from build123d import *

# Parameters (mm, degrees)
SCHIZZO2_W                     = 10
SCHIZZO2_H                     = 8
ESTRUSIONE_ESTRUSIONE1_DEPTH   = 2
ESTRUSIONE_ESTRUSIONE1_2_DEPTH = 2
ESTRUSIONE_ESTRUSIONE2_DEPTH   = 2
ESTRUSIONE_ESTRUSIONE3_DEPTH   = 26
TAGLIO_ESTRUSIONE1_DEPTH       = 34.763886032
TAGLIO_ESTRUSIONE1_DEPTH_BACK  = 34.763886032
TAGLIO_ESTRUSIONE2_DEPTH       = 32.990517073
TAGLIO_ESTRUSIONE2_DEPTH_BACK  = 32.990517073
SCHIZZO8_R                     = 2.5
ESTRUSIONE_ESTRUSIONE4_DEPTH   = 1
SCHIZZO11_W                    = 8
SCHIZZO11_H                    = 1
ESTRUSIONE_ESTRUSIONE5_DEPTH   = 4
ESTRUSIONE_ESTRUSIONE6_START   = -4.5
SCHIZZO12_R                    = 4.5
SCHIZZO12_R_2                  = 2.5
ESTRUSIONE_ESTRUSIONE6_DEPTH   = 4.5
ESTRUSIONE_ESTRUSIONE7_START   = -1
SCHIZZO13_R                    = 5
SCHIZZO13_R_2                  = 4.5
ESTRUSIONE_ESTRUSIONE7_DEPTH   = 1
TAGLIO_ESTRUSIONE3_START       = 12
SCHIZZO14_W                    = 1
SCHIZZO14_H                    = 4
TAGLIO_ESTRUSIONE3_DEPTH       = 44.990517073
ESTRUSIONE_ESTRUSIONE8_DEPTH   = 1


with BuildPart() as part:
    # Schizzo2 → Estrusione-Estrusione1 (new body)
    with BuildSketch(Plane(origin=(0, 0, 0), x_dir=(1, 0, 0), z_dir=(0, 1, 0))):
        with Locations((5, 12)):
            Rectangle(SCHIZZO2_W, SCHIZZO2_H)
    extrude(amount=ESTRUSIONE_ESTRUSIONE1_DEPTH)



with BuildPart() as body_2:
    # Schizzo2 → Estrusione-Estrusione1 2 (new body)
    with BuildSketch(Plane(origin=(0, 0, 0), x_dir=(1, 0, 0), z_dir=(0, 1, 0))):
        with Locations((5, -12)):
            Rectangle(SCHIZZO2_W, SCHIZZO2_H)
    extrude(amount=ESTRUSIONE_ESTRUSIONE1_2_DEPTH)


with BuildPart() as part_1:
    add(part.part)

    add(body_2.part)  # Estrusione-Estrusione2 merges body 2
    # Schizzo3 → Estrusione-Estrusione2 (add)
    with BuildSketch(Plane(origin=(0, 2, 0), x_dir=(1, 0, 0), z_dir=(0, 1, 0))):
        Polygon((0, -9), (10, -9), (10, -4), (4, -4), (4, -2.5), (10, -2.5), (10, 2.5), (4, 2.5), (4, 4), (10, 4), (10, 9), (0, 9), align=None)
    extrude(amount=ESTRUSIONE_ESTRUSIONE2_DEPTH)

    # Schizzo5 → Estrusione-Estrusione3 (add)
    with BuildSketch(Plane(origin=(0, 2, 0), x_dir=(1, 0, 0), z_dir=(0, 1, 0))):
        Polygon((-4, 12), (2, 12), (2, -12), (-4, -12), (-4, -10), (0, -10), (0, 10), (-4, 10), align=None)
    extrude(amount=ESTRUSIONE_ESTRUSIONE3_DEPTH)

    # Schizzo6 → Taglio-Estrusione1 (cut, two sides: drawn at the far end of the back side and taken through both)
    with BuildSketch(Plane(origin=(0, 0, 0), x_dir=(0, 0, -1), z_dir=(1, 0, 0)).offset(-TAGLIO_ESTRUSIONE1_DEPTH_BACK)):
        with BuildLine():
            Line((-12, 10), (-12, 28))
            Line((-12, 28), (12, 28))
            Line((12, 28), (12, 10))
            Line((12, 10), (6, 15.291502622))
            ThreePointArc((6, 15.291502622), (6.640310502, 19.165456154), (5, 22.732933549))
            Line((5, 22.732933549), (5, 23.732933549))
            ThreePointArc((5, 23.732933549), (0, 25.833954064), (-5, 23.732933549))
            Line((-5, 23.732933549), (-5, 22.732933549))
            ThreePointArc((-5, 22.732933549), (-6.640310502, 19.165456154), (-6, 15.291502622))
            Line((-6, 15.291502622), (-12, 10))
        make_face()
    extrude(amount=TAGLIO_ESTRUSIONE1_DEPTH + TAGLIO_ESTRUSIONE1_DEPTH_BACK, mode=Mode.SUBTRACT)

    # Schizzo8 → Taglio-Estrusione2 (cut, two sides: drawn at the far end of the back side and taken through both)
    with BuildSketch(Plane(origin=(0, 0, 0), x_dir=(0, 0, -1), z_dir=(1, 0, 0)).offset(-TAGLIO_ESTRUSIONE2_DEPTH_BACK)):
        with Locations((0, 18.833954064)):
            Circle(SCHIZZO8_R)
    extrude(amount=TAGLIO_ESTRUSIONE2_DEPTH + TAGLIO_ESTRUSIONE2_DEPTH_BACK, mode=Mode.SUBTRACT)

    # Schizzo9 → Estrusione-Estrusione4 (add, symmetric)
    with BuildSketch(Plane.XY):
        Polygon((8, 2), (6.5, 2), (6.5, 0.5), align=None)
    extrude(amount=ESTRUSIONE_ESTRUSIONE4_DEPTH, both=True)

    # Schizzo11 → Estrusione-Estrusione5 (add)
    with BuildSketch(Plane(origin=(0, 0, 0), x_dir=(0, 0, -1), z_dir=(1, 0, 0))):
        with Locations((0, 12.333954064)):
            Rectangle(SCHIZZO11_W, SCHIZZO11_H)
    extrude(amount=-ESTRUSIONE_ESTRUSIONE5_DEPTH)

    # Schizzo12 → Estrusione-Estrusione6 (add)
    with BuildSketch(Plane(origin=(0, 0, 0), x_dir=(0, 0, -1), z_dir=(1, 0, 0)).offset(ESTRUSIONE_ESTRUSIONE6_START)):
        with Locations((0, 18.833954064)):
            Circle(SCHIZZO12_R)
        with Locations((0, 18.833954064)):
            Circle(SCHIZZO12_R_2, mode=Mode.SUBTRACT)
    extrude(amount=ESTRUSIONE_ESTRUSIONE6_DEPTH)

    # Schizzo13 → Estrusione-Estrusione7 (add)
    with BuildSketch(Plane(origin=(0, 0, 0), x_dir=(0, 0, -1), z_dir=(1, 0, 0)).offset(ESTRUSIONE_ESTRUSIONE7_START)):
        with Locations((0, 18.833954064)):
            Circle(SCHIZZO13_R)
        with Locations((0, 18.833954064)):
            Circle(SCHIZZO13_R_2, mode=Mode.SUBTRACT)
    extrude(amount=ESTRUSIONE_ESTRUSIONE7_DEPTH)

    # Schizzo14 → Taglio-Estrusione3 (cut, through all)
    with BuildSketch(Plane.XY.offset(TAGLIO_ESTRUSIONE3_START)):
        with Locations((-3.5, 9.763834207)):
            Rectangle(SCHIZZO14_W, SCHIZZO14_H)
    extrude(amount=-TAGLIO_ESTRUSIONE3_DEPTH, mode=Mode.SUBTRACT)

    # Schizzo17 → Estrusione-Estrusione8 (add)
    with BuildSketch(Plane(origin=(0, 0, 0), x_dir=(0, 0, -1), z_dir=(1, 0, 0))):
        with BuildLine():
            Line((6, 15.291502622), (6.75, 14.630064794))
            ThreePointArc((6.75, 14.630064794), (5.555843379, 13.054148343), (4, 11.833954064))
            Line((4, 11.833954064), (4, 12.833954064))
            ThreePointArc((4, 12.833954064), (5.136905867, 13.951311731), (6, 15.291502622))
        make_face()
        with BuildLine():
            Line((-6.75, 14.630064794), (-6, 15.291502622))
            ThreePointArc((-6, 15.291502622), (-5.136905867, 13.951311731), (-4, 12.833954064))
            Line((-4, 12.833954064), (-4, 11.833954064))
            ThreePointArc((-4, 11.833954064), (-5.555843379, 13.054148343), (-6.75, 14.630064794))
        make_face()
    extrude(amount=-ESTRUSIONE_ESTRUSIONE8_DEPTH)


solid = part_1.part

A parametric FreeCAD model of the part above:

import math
import FreeCAD as App
import Part
import Sketcher
Q = App.Units.Quantity


def add_polygon(sketch, points):
    """Adds a closed chain of lines whose ends are joined by coincident constraints."""
    first, n = sketch.GeometryCount, len(points)
    for a, b in zip(points, points[1:] + points[:1]):
        sketch.addGeometry(Part.LineSegment(App.Vector(*a, 0), App.Vector(*b, 0)), False)
    for i in range(n):
        sketch.addConstraint(Sketcher.Constraint("Coincident", first + i, 2, first + (i + 1) % n, 1))

doc = App.newDocument("Part")
body = doc.addObject("PartDesign::Body", "Body")

sketch1 = body.newObject("Sketcher::SketchObject", "Sketch")
sketch1.AttachmentSupport = (doc.getObject("XZ_Plane"), [""])
sketch1.MapMode = "FlatFace"
add_polygon(sketch1, [(0, -16), (0, -8), (10, -8), (10, -16)])
sketch1.addConstraint([
    Sketcher.Constraint("Vertical", 0),
    Sketcher.Constraint("Horizontal", 1),
    Sketcher.Constraint("Vertical", 2),
    Sketcher.Constraint("Horizontal", 3),
    Sketcher.Constraint("PointOnObject", 0, 2, -2),
    Sketcher.Constraint("DistanceX", 1, 1, 1, 2, Q("10 mm")),
    Sketcher.Constraint("DistanceY", 0, 1, 0, 2, Q("8 mm")),
    Sketcher.Constraint("DistanceY", 0, 2, -1, 1, Q("8 mm")),
])
pad1 = body.newObject("PartDesign::Pad", "Pad")
pad1.Profile = sketch1
pad1.Length = 2
pad1.Reversed = True
body2 = doc.addObject("PartDesign::Body", "Body001")

sketch2 = body2.newObject("Sketcher::SketchObject", "Sketch001")
sketch2.AttachmentSupport = (doc.getObject("XZ_Plane001"), [""])
sketch2.MapMode = "FlatFace"
add_polygon(sketch2, [(0, 8), (0, 16), (10, 16), (10, 8)])
sketch2.addConstraint([
    Sketcher.Constraint("Vertical", 0),
    Sketcher.Constraint("Horizontal", 1),
    Sketcher.Constraint("Vertical", 2),
    Sketcher.Constraint("Horizontal", 3),
    Sketcher.Constraint("PointOnObject", 0, 2, -2),
    Sketcher.Constraint("DistanceX", 1, 1, 1, 2, Q("10 mm")),
    Sketcher.Constraint("DistanceY", 0, 1, 0, 2, Q("8 mm")),
    Sketcher.Constraint("DistanceY", -1, 1, 0, 2, Q("16 mm")),
])
pad2 = body2.newObject("PartDesign::Pad", "Pad001")
pad2.Profile = sketch2
pad2.Length = 2
pad2.Reversed = True
body.AllowCompound = True
doc.recompute()

boolean = body.newObject("PartDesign::Boolean", "Boolean")
boolean.Type = "Fuse"
boolean.addObjects([body2])

sketch3 = body.newObject("Sketcher::SketchObject", "Sketch002")
sketch3.AttachmentSupport = (doc.getObject("XZ_Plane"), [""])
sketch3.MapMode = "FlatFace"
sketch3.AttachmentOffset = App.Placement(App.Vector(0, 0, -2), App.Rotation())
add_polygon(sketch3, [(0, 9), (10, 9), (10, 4), (4, 4), (4, 2.5), (10, 2.5), (10, -2.5), (4, -2.5), (4, -4), (10, -4), (10, -9), (0, -9)])
sketch3.addConstraint([
    Sketcher.Constraint("Horizontal", 0),
    Sketcher.Constraint("Vertical", 1),
    Sketcher.Constraint("Horizontal", 2),
    Sketcher.Constraint("Vertical", 3),
    Sketcher.Constraint("Horizontal", 4),
    Sketcher.Constraint("Vertical", 5),
    Sketcher.Constraint("Horizontal", 6),
    Sketcher.Constraint("Vertical", 7),
    Sketcher.Constraint("Horizontal", 8),
    Sketcher.Constraint("Vertical", 9),
    Sketcher.Constraint("Horizontal", 10),
    Sketcher.Constraint("Vertical", 11),
    Sketcher.Constraint("Symmetric", 10, 2, 11, 2, -1, 1),
    Sketcher.Constraint("Symmetric", 3, 2, 6, 2, -1),
    Sketcher.Constraint("Symmetric", 1, 2, 8, 2, -1),
    Sketcher.Constraint("Vertical", 1, 2, 4, 2),
    Sketcher.Constraint("Equal", 1, 5),
    Sketcher.Constraint("DistanceX", 0, 1, 0, 2, Q("10 mm")),
    Sketcher.Constraint("DistanceX", 2, 2, 2, 1, Q("6 mm")),
    Sketcher.Constraint("DistanceY", 1, 2, 1, 1, Q("5 mm")),
    Sketcher.Constraint("DistanceY", 11, 1, 11, 2, Q("18 mm")),
])
pad3 = body.newObject("PartDesign::Pad", "Pad002")
pad3.Profile = sketch3
pad3.Length = 2
pad3.Reversed = True

sketch4 = body.newObject("Sketcher::SketchObject", "Sketch003")
sketch4.AttachmentSupport = (doc.getObject("XZ_Plane"), [""])
sketch4.MapMode = "FlatFace"
sketch4.AttachmentOffset = App.Placement(App.Vector(0, 0, -2), App.Rotation())
add_polygon(sketch4, [(2, -12), (-4, -12), (-4, -10), (0, -10), (0, 10), (-4, 10), (-4, 12), (2, 12)])
sketch4.addConstraint([
    Sketcher.Constraint("Horizontal", 0),
    Sketcher.Constraint("Vertical", 1),
    Sketcher.Constraint("Horizontal", 2),
    Sketcher.Constraint("Vertical", 3),
    Sketcher.Constraint("Horizontal", 4),
    Sketcher.Constraint("Vertical", 5),
    Sketcher.Constraint("Horizontal", 6),
    Sketcher.Constraint("Vertical", 7),
    Sketcher.Constraint("Symmetric", 2, 2, 3, 2, -1, 1),
    Sketcher.Constraint("Symmetric", 0, 2, 5, 2, -1),
    Sketcher.Constraint("DistanceX", 0, 2, 0, 1, Q("6 mm")),
    Sketcher.Constraint("DistanceX", 2, 1, 2, 2, Q("4 mm")),
    Sketcher.Constraint("DistanceY", 1, 1, 1, 2, Q("2 mm")),
    Sketcher.Constraint("DistanceY", 3, 1, 3, 2, Q("20 mm")),
])
pad4 = body.newObject("PartDesign::Pad", "Pad003")
pad4.Profile = sketch4
pad4.Length = 26
pad4.Reversed = True

sketch5 = body.newObject("Sketcher::SketchObject", "Sketch004")
sketch5.AttachmentSupport = (doc.getObject("YZ_Plane"), [""])
sketch5.MapMode = "FlatFace"
sketch5.addGeometry([
    Part.LineSegment(App.Vector(28, 12, 0), App.Vector(10, 12, 0)),
    Part.LineSegment(App.Vector(10, 12, 0), App.Vector(15.3, 6, 0)),
    Part.ArcOfCircle(Part.Circle(App.Vector(18.3, 0, 0), App.Vector(0, 0, 1), 6.7), math.radians(48), math.radians(116)),
    Part.LineSegment(App.Vector(22.7, 5, 0), App.Vector(23.7, 5, 0)),
    Part.ArcOfCircle(Part.Circle(App.Vector(18.8, 0, 0), App.Vector(0, 0, 1), 7), math.radians(-46), math.radians(46)),
    Part.LineSegment(App.Vector(23.7, -5, 0), App.Vector(22.7, -5, 0)),
    Part.ArcOfCircle(Part.Circle(App.Vector(18.3, 0, 0), App.Vector(0, 0, 1), 6.7), math.radians(-116), math.radians(-48)),
    Part.LineSegment(App.Vector(15.3, -6, 0), App.Vector(10, -12, 0)),
    Part.LineSegment(App.Vector(10, -12, 0), App.Vector(28, -12, 0)),
    Part.LineSegment(App.Vector(28, -12, 0), App.Vector(28, 12, 0)),
], False)
sketch5.addConstraint([
    Sketcher.Constraint("Coincident", 0, 2, 1, 1),
    Sketcher.Constraint("Coincident", 1, 2, 2, 2),
    Sketcher.Constraint("Coincident", 2, 1, 3, 1),
    Sketcher.Constraint("Coincident", 3, 2, 4, 2),
    Sketcher.Constraint("Coincident", 4, 1, 5, 1),
    Sketcher.Constraint("Coincident", 5, 2, 6, 2),
    Sketcher.Constraint("Coincident", 6, 1, 7, 1),
    Sketcher.Constraint("Coincident", 7, 2, 8, 1),
    Sketcher.Constraint("Coincident", 8, 2, 9, 1),
    Sketcher.Constraint("Coincident", 9, 2, 0, 1),
    Sketcher.Constraint("Horizontal", 0),
    Sketcher.Constraint("Horizontal", 3),
    Sketcher.Constraint("Horizontal", 5),
    Sketcher.Constraint("Horizontal", 8),
    Sketcher.Constraint("Vertical", 9),
    Sketcher.Constraint("Coincident", 6, 3, 2, 3),
    Sketcher.Constraint("Equal", 2, 6),
    Sketcher.Constraint("Symmetric", 3, 2, 4, 1, -1),
    Sketcher.Constraint("Symmetric", 1, 2, 6, 1, -1),
    Sketcher.Constraint("Symmetric", 0, 2, 7, 2, -1),
    Sketcher.Constraint("Radius", 4, Q("7 mm")),
    Sketcher.Constraint("Radius", 2, Q("6.7 mm")),
    Sketcher.Constraint("DistanceX", 0, 2, 0, 1, Q("18 mm")),
    Sketcher.Constraint("DistanceX", 3, 1, 3, 2, Q("1 mm")),
    Sketcher.Constraint("DistanceY", 9, 1, 9, 2, Q("24 mm")),
    Sketcher.Constraint("Distance", 1, Q("8 mm")),
    Sketcher.Constraint("DistanceX", -1, 1, 0, 2, Q("10 mm")),
    Sketcher.Constraint("DistanceY", -1, 1, 1, 2, Q("6 mm")),
    Sketcher.Constraint("DistanceY", -1, 1, 2, 1, Q("5 mm")),
])
pocket1 = body.newObject("PartDesign::Pocket", "Pocket")
pocket1.Profile = sketch5
pocket1.Type = "ThroughAll"
pocket1.Midplane = True

sketch6 = body.newObject("Sketcher::SketchObject", "Sketch005")
sketch6.AttachmentSupport = (doc.getObject("YZ_Plane"), [""])
sketch6.MapMode = "FlatFace"
sketch6.addGeometry(Part.Circle(App.Vector(18.8, 0, 0), App.Vector(0, 0, 1), 2.5), False)
sketch6.addConstraint([
    Sketcher.Constraint("PointOnObject", 0, 3, -1),
    Sketcher.Constraint("Diameter", 0, Q("5 mm")),
    Sketcher.Constraint("DistanceX", -1, 1, 0, 3, Q("18.833954 mm")),
])
pocket2 = body.newObject("PartDesign::Pocket", "Pocket001")
pocket2.Profile = sketch6
pocket2.Type = "ThroughAll"
pocket2.Midplane = True

sketch7 = body.newObject("Sketcher::SketchObject", "Sketch006")
sketch7.AttachmentSupport = (doc.getObject("XY_Plane"), [""])
sketch7.MapMode = "FlatFace"
add_polygon(sketch7, [(8, 2), (6.5, 2), (6.5, 0.5)])
sketch7.addConstraint([
    Sketcher.Constraint("Horizontal", 0),
    Sketcher.Constraint("Vertical", 1),
    Sketcher.Constraint("Equal", 0, 1),
    Sketcher.Constraint("DistanceX", 0, 2, 0, 1, Q("1.5 mm")),
    Sketcher.Constraint("DistanceY", -1, 1, 0, 2, Q("2 mm")),
    Sketcher.Constraint("DistanceX", -1, 1, 2, 2, Q("8 mm")),
])
pad5 = body.newObject("PartDesign::Pad", "Pad004")
pad5.Profile = sketch7
pad5.Length = 2
pad5.Midplane = True

sketch8 = body.newObject("Sketcher::SketchObject", "Sketch007")
sketch8.AttachmentSupport = (doc.getObject("YZ_Plane"), [""])
sketch8.MapMode = "FlatFace"
add_polygon(sketch8, [(12.8, 4), (11.8, 4), (11.8, -4), (12.8, -4)])
sketch8.addConstraint([
    Sketcher.Constraint("Horizontal", 0),
    Sketcher.Constraint("Vertical", 1),
    Sketcher.Constraint("Horizontal", 2),
    Sketcher.Constraint("Vertical", 3),
    Sketcher.Constraint("DistanceX", 0, 2, 0, 1, Q("1 mm")),
    Sketcher.Constraint("DistanceY", 1, 2, 1, 1, Q("8 mm")),
    Sketcher.Constraint("DistanceY", -1, 1, 0, 2, Q("4 mm")),
    Sketcher.Constraint("DistanceX", -1, 1, 0, 2, Q("11.833954 mm")),
])
pad6 = body.newObject("PartDesign::Pad", "Pad005")
pad6.Profile = sketch8
pad6.Length = 4
pad6.Reversed = True

sketch9 = body.newObject("Sketcher::SketchObject", "Sketch008")
sketch9.AttachmentSupport = (doc.getObject("YZ_Plane"), [""])
sketch9.MapMode = "FlatFace"
sketch9.AttachmentOffset = App.Placement(App.Vector(0, 0, -4.5), App.Rotation())
sketch9.addGeometry([
    Part.Circle(App.Vector(18.8, 0, 0), App.Vector(0, 0, 1), 4.5),
    Part.Circle(App.Vector(18.8, 0, 0), App.Vector(0, 0, 1), 2.5),
], False)
sketch9.addConstraint([
    Sketcher.Constraint("Coincident", 1, 3, 0, 3),
    Sketcher.Constraint("PointOnObject", 0, 3, -1),
    Sketcher.Constraint("Diameter", 0, Q("9 mm")),
    Sketcher.Constraint("Diameter", 1, Q("5 mm")),
    Sketcher.Constraint("DistanceX", -1, 1, 0, 3, Q("18.833954 mm")),
])
pad7 = body.newObject("PartDesign::Pad", "Pad006")
pad7.Profile = sketch9
pad7.Length = 4.5

sketch10 = body.newObject("Sketcher::SketchObject", "Sketch009")
sketch10.AttachmentSupport = (doc.getObject("YZ_Plane"), [""])
sketch10.MapMode = "FlatFace"
sketch10.AttachmentOffset = App.Placement(App.Vector(0, 0, -1), App.Rotation())
sketch10.addGeometry([
    Part.Circle(App.Vector(18.8, 0, 0), App.Vector(0, 0, 1), 5),
    Part.Circle(App.Vector(18.8, 0, 0), App.Vector(0, 0, 1), 4.5),
], False)
sketch10.addConstraint([
    Sketcher.Constraint("Coincident", 1, 3, 0, 3),
    Sketcher.Constraint("PointOnObject", 0, 3, -1),
    Sketcher.Constraint("Diameter", 0, Q("10 mm")),
    Sketcher.Constraint("Diameter", 1, Q("9 mm")),
    Sketcher.Constraint("DistanceX", -1, 1, 0, 3, Q("18.833954 mm")),
])
pad8 = body.newObject("PartDesign::Pad", "Pad007")
pad8.Profile = sketch10
pad8.Length = 1

sketch11 = body.newObject("Sketcher::SketchObject", "Sketch010")
sketch11.AttachmentSupport = (doc.getObject("XY_Plane"), [""])
sketch11.MapMode = "FlatFace"
sketch11.AttachmentOffset = App.Placement(App.Vector(0, 0, 12), App.Rotation())
add_polygon(sketch11, [(-4, 11.8), (-4, 7.8), (-3, 7.8), (-3, 11.8)])
sketch11.addConstraint([
    Sketcher.Constraint("Vertical", 0),
    Sketcher.Constraint("Horizontal", 1),
    Sketcher.Constraint("Vertical", 2),
    Sketcher.Constraint("Horizontal", 3),
    Sketcher.Constraint("DistanceX", 1, 1, 1, 2, Q("1 mm")),
    Sketcher.Constraint("DistanceY", 0, 2, 0, 1, Q("4 mm")),
    Sketcher.Constraint("DistanceX", 0, 2, -1, 1, Q("4 mm")),
    Sketcher.Constraint("DistanceY", -1, 1, 0, 2, Q("7.763834 mm")),
])
pocket3 = body.newObject("PartDesign::Pocket", "Pocket002")
pocket3.Profile = sketch11
pocket3.Type = "ThroughAll"

sketch12 = body.newObject("Sketcher::SketchObject", "Sketch011")
sketch12.AttachmentSupport = (doc.getObject("YZ_Plane"), [""])
sketch12.MapMode = "FlatFace"
sketch12.addGeometry([
    Part.LineSegment(App.Vector(14.6, -6.8, 0), App.Vector(15.3, -6, 0)),
    Part.ArcOfCircle(Part.Circle(App.Vector(18.5, 0.4, 0), App.Vector(0, 0, 1), 7.2), math.radians(-142), math.radians(-116)),
    Part.LineSegment(App.Vector(12.8, -4, 0), App.Vector(11.8, -4, 0)),
    Part.ArcOfCircle(Part.Circle(App.Vector(18.5, -0.1, 0), App.Vector(0, 0, 1), 7.7), math.radians(-149), math.radians(-120)),
    Part.LineSegment(App.Vector(15.3, 6, 0), App.Vector(14.6, 6.8, 0)),
    Part.ArcOfCircle(Part.Circle(App.Vector(18.5, 0.1, 0), App.Vector(0, 0, 1), 7.7), math.radians(120), math.radians(149)),
    Part.LineSegment(App.Vector(11.8, 4, 0), App.Vector(12.8, 4, 0)),
    Part.ArcOfCircle(Part.Circle(App.Vector(18.5, -0.4, 0), App.Vector(0, 0, 1), 7.2), math.radians(116), math.radians(142)),
], False)
sketch12.addConstraint([
    Sketcher.Constraint("Coincident", 0, 2, 1, 2),
    Sketcher.Constraint("Coincident", 1, 1, 2, 1),
    Sketcher.Constraint("Coincident", 2, 2, 3, 1),
    Sketcher.Constraint("Coincident", 3, 2, 0, 1),
    Sketcher.Constraint("Coincident", 4, 2, 5, 1),
    Sketcher.Constraint("Coincident", 5, 2, 6, 1),
    Sketcher.Constraint("Coincident", 6, 2, 7, 2),
    Sketcher.Constraint("Coincident", 7, 1, 4, 1),
    Sketcher.Constraint("Horizontal", 2),
    Sketcher.Constraint("Horizontal", 6),
    Sketcher.Constraint("Equal", 3, 5),
    Sketcher.Constraint("Equal", 1, 7),
    Sketcher.Constraint("Symmetric", 3, 3, 5, 3, -1),
    Sketcher.Constraint("Symmetric", 1, 3, 7, 3, -1),
    Sketcher.Constraint("Vertical", 3, 2, 4, 2),
    Sketcher.Constraint("Vertical", 2, 2, 5, 2),
    Sketcher.Constraint("Vertical", 0, 2, 7, 1),
    Sketcher.Constraint("DistanceX", 2, 2, 2, 1, Q("1 mm")),
    Sketcher.Constraint("Distance", 0, Q("1 mm")),
    Sketcher.Constraint("DistanceY", 0, 2, -1, 1, Q("6 mm")),
    Sketcher.Constraint("DistanceY", 1, 1, -1, 1, Q("4 mm")),
    Sketcher.Constraint("DistanceY", 3, 2, -1, 1, Q("6.75 mm")),
    Sketcher.Constraint("Radius", 1, Q("7.197888 mm")),
    Sketcher.Constraint("Radius", 3, Q("7.706496 mm")),
    Sketcher.Constraint("DistanceX", -1, 1, 1, 3, Q("18.494681 mm")),
    Sketcher.Constraint("DistanceY", -1, 1, 1, 3, Q("0.44587 mm")),
])
pad9 = body.newObject("PartDesign::Pad", "Pad008")
pad9.Profile = sketch12
pad9.Length = 1
pad9.Reversed = True

doc.recompute()
